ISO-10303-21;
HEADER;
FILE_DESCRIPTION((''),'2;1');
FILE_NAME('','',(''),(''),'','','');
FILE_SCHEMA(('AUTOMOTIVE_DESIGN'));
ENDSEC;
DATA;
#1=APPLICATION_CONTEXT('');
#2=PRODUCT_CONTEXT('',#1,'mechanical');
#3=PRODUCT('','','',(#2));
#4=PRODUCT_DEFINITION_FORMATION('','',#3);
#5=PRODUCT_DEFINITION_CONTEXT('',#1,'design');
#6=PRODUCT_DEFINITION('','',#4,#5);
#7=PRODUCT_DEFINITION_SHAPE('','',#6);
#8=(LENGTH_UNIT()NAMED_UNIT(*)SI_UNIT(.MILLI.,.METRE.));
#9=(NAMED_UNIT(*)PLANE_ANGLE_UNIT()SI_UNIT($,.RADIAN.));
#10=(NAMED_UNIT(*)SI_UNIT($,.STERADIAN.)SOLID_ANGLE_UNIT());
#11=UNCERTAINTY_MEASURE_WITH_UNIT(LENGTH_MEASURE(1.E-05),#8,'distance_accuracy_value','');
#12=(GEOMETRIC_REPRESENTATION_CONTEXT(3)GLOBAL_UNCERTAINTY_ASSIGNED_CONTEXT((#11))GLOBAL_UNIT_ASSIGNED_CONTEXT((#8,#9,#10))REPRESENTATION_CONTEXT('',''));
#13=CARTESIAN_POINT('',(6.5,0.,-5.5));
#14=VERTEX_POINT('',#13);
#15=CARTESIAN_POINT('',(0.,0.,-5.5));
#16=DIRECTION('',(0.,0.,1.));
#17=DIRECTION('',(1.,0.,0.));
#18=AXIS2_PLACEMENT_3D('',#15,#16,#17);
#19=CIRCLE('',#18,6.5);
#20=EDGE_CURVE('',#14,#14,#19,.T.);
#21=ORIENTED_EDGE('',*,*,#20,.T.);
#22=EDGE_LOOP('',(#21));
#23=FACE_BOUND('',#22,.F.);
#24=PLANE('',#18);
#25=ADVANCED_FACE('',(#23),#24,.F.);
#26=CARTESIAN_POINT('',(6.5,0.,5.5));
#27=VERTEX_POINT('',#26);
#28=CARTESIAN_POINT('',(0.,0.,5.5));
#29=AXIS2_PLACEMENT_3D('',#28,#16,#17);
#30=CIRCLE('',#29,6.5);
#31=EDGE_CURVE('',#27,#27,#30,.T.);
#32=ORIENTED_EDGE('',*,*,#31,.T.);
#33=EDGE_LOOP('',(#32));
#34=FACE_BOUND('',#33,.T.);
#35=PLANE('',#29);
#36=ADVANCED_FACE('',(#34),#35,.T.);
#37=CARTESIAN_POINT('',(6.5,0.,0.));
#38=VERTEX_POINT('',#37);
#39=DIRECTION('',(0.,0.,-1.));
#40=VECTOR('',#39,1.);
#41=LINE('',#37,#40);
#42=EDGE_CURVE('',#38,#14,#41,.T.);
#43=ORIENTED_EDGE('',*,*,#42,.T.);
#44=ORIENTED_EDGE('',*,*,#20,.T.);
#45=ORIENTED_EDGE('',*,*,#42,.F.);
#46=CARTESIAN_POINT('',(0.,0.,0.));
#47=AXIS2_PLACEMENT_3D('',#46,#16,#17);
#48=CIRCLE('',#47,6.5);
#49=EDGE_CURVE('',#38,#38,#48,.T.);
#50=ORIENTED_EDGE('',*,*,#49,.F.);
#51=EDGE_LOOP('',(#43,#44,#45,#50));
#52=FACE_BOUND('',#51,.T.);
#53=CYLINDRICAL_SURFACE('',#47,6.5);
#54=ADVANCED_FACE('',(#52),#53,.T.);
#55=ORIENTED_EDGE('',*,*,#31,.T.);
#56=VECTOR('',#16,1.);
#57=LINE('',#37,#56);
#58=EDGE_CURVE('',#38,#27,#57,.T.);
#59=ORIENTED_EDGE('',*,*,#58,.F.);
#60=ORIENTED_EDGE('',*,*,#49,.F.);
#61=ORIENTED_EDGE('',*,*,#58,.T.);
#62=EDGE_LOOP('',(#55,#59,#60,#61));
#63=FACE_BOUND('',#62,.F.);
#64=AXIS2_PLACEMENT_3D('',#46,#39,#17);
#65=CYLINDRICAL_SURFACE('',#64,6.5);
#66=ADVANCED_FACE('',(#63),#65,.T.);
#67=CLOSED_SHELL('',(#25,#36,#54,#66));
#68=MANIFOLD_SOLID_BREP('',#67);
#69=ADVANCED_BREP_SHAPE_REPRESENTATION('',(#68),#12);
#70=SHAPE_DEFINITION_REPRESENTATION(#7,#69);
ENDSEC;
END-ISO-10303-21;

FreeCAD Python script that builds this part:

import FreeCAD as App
import Part
import Sketcher

V = App.Vector

doc = App.newDocument("Part")
body = doc.addObject("PartDesign::Body", "Body")

sketch1 = doc.addObject("Sketcher::SketchObject", "Sketch")
body.addObject(sketch1)
sketch1.AttachmentSupport = (doc.XY_Plane, [""])
sketch1.MapMode = "FlatFace"
sketch1.addGeometry(Part.Circle(V(0, 0, 0), V(0, 0, 1), 6.5), False)
sketch1.addConstraint([
    Sketcher.Constraint("Coincident", 0, 3, -1, 1),
    Sketcher.Constraint("Diameter", 0, 13.0),
])
pad1 = doc.addObject("PartDesign::Pad", "Pad")
body.addObject(pad1)
pad1.Profile = sketch1
pad1.Length = 11
pad1.Midplane = True

doc.recompute()
